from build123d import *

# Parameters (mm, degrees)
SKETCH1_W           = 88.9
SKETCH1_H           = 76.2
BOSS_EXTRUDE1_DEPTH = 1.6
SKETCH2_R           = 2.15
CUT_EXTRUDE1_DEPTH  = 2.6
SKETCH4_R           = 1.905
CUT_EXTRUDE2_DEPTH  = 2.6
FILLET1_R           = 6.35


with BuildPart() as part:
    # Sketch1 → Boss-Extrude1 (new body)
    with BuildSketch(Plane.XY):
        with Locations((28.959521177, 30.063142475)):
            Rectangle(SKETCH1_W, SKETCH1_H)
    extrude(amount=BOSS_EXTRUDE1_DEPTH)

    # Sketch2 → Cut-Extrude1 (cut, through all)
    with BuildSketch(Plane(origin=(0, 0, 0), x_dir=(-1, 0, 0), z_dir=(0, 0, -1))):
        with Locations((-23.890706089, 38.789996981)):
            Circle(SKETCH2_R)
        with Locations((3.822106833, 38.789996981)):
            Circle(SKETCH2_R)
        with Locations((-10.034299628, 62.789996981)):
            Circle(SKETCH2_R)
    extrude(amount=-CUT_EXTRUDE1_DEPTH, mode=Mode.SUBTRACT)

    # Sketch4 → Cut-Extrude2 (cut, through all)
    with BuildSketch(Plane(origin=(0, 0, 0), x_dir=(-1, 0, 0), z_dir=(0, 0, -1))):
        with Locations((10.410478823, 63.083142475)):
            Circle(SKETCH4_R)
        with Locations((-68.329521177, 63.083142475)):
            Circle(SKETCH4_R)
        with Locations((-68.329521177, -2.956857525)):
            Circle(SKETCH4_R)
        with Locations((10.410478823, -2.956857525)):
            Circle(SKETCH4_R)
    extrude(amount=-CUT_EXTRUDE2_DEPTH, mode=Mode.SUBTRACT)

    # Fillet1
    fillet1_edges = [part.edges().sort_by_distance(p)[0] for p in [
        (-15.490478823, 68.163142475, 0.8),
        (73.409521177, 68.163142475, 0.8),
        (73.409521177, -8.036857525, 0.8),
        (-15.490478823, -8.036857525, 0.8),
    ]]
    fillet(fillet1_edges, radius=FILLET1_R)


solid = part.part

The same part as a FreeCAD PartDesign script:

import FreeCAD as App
import Part
import Sketcher

V = App.Vector
Q = App.Units.Quantity


def edges_at(feature, points):
    """Names of the edges that pass closest to the given points."""
    edges = feature.Shape.Edges
    near = lambda p: min(range(len(edges)), key=lambda i: edges[i].distToShape(Part.Vertex(*p))[0])
    return sorted({f"Edge{near(p) + 1}" for p in points})

doc = App.newDocument("Part")
body = doc.addObject("PartDesign::Body", "Body")

# Sketch on XY plane
sketch1 = body.newObject("Sketcher::SketchObject", "Sketch")
sketch1.AttachmentSupport = (doc.getObject("XY_Plane"), [""])
sketch1.MapMode = "FlatFace"
sketch1.addGeometry([
    Part.LineSegment(V(-15, 68, 0), V(-15, -8, 0)),
    Part.LineSegment(V(-15, -8, 0), V(73, -8, 0)),
    Part.LineSegment(V(73, -8, 0), V(73, 68, 0)),
    Part.LineSegment(V(73, 68, 0), V(-15, 68, 0)),
], False)
sketch1.addConstraint([
    Sketcher.Constraint("Coincident", 0, 2, 1, 1),
    Sketcher.Constraint("Coincident", 1, 2, 2, 1),
    Sketcher.Constraint("Coincident", 2, 2, 3, 1),
    Sketcher.Constraint("Coincident", 3, 2, 0, 1),
    Sketcher.Constraint("Vertical", 0),
    Sketcher.Constraint("Horizontal", 1),
    Sketcher.Constraint("Vertical", 2),
    Sketcher.Constraint("Horizontal", 3),
    Sketcher.Constraint("DistanceY", 0, 2, 0, 1, Q("3 in")),
    Sketcher.Constraint("DistanceX", 1, 1, 1, 2, Q("3.5 in")),
    Sketcher.Constraint("DistanceX", 0, 2, -1, 1, Q("15.490479 mm")),
    Sketcher.Constraint("DistanceY", 0, 2, -1, 1, Q("8.036858 mm")),
])
pad1 = body.newObject("PartDesign::Pad", "Pad")
pad1.Profile = sketch1
pad1.Length = 1.6

# Sketch on XY plane
sketch2 = body.newObject("Sketcher::SketchObject", "Sketch001")
sketch2.AttachmentSupport = (doc.getObject("XY_Plane"), [""])
sketch2.MapMode = "FlatFace"
sketch2.addGeometry([
    Part.Circle(V(23.9, 38.8, 0), V(0, 0, 1), 2.1),
    Part.Circle(V(-3.8, 38.8, 0), V(0, 0, 1), 2.1),
    Part.Circle(V(10, 62.8, 0), V(0, 0, 1), 2.1),
], False)
sketch2.addConstraint([
    Sketcher.Constraint("Equal", 0, 1),
    Sketcher.Constraint("Equal", 1, 2),
    Sketcher.Constraint("Horizontal", 0, 3, 1, 3),
    Sketcher.Constraint("Diameter", 0, Q("4.3 mm")),
    Sketcher.Constraint("DistanceX", -1, 1, 2, 3, Q("10.0343 mm")),
    Sketcher.Constraint("DistanceY", 0, 3, 2, 3, Q("24 mm")),
    Sketcher.Constraint("DistanceX", -1, 1, 0, 3, Q("23.890706 mm")),
    Sketcher.Constraint("DistanceY", -1, 1, 0, 3, Q("38.789997 mm")),
    Sketcher.Constraint("DistanceX", 1, 3, -1, 1, Q("3.822107 mm")),
])
pocket1 = body.newObject("PartDesign::Pocket", "Pocket")
pocket1.Profile = sketch2
pocket1.Type = "ThroughAll"
pocket1.Reversed = True

# Sketch on XY plane
sketch3 = body.newObject("Sketcher::SketchObject", "Sketch002")
sketch3.AttachmentSupport = (doc.getObject("XY_Plane"), [""])
sketch3.MapMode = "FlatFace"
sketch3.addGeometry([
    Part.Circle(V(-10.4, 63.1, 0), V(0, 0, 1), 1.9),
    Part.Circle(V(68.3, 63.1, 0), V(0, 0, 1), 1.9),
    Part.Circle(V(68.3, -3, 0), V(0, 0, 1), 1.9),
    Part.Circle(V(-10.4, -3, 0), V(0, 0, 1), 1.9),
], False)
sketch3.addConstraint([
    Sketcher.Constraint("Equal", 0, 1),
    Sketcher.Constraint("Equal", 1, 2),
    Sketcher.Constraint("Equal", 2, 3),
    Sketcher.Constraint("Horizontal", 0, 3, 1, 3),
    Sketcher.Constraint("Horizontal", 2, 3, 3, 3),
    Sketcher.Constraint("Vertical", 1, 3, 2, 3),
    Sketcher.Constraint("Vertical", 0, 3, 3, 3),
    Sketcher.Constraint("Diameter", 0, Q("0.15 in")),
    Sketcher.Constraint("DistanceX", 0, 3, 1, 3, Q("3.1 in")),
    Sketcher.Constraint("DistanceY", 2, 3, 1, 3, Q("2.6 in")),
    Sketcher.Constraint("DistanceX", 0, 3, -1, 1, Q("10.410479 mm")),
    Sketcher.Constraint("DistanceY", -1, 1, 0, 3, Q("63.083142 mm")),
])
pocket2 = body.newObject("PartDesign::Pocket", "Pocket001")
pocket2.Profile = sketch3
pocket2.Type = "ThroughAll"
pocket2.Reversed = True
doc.recompute()

fillet = body.newObject("PartDesign::Fillet", "Fillet")
fillet.Base = (pocket2, edges_at(pocket2, [
    (-15.49, 68.163, 0.8),
    (73.41, 68.163, 0.8),
    (73.41, -8.037, 0.8),
    (-15.49, -8.037, 0.8),
]))
fillet.Radius = Q("0.25 in")

doc.recompute()
